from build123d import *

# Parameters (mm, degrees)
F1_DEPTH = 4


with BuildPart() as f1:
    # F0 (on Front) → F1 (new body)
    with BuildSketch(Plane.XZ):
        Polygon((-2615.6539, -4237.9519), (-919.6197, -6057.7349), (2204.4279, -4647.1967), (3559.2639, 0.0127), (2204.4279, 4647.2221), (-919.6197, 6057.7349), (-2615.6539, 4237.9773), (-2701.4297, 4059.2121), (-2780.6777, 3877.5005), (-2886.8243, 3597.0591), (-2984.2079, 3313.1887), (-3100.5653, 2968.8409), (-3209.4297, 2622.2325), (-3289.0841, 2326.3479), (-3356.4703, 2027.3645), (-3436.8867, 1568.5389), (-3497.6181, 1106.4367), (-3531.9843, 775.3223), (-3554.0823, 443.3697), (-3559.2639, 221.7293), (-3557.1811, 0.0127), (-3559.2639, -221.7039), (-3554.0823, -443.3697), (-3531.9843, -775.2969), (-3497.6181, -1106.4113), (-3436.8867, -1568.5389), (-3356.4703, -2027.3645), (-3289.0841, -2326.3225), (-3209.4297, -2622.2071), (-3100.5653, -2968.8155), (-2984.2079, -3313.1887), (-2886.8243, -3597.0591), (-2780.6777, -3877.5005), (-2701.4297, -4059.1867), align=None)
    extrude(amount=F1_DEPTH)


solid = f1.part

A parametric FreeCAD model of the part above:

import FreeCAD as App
import Part
import Sketcher

doc = App.newDocument("Part")
body = doc.addObject("PartDesign::Body", "Body")

# Sketch on XZ plane
sketch1 = doc.addObject("Sketcher::SketchObject", "Sketch")
body.addObject(sketch1)
sketch1.AttachmentSupport = (doc.XZ_Plane, [""])
sketch1.MapMode = "FlatFace"
sketch1.addGeometry(Part.LineSegment(App.Vector(-2616, -4238, 0), App.Vector(-920, -6058, 0)), False)
sketch1.addGeometry(Part.LineSegment(App.Vector(-920, -6058, 0), App.Vector(2204, -4647, 0)), False)
sketch1.addGeometry(Part.LineSegment(App.Vector(2204, -4647, 0), App.Vector(3559, 0, 0)), False)
sketch1.addGeometry(Part.LineSegment(App.Vector(3559, 0, 0), App.Vector(2204, 4647, 0)), False)
sketch1.addGeometry(Part.LineSegment(App.Vector(2204, 4647, 0), App.Vector(-920, 6058, 0)), False)
sketch1.addGeometry(Part.LineSegment(App.Vector(-920, 6058, 0), App.Vector(-2616, 4238, 0)), False)
sketch1.addGeometry(Part.LineSegment(App.Vector(-2616, 4238, 0), App.Vector(-2701, 4059, 0)), False)
sketch1.addGeometry(Part.LineSegment(App.Vector(-2701, 4059, 0), App.Vector(-2781, 3878, 0)), False)
sketch1.addGeometry(Part.LineSegment(App.Vector(-2781, 3878, 0), App.Vector(-2887, 3597, 0)), False)
sketch1.addGeometry(Part.LineSegment(App.Vector(-2887, 3597, 0), App.Vector(-2984, 3313, 0)), False)
sketch1.addGeometry(Part.LineSegment(App.Vector(-2984, 3313, 0), App.Vector(-3101, 2969, 0)), False)
sketch1.addGeometry(Part.LineSegment(App.Vector(-3101, 2969, 0), App.Vector(-3209, 2622, 0)), False)
sketch1.addGeometry(Part.LineSegment(App.Vector(-3209, 2622, 0), App.Vector(-3289, 2326, 0)), False)
sketch1.addGeometry(Part.LineSegment(App.Vector(-3289, 2326, 0), App.Vector(-3356, 2027, 0)), False)
sketch1.addGeometry(Part.LineSegment(App.Vector(-3356, 2027, 0), App.Vector(-3437, 1569, 0)), False)
sketch1.addGeometry(Part.LineSegment(App.Vector(-3437, 1569, 0), App.Vector(-3498, 1106, 0)), False)
sketch1.addGeometry(Part.LineSegment(App.Vector(-3498, 1106, 0), App.Vector(-3532, 775, 0)), False)
sketch1.addGeometry(Part.LineSegment(App.Vector(-3532, 775, 0), App.Vector(-3554, 443, 0)), False)
sketch1.addGeometry(Part.LineSegment(App.Vector(-3554, 443, 0), App.Vector(-3559, 222, 0)), False)
sketch1.addGeometry(Part.LineSegment(App.Vector(-3559, 222, 0), App.Vector(-3557, 0, 0)), False)
sketch1.addGeometry(Part.LineSegment(App.Vector(-3557, 0, 0), App.Vector(-3559, -222, 0)), False)
sketch1.addGeometry(Part.LineSegment(App.Vector(-3559, -222, 0), App.Vector(-3554, -443, 0)), False)
sketch1.addGeometry(Part.LineSegment(App.Vector(-3554, -443, 0), App.Vector(-3532, -775, 0)), False)
sketch1.addGeometry(Part.LineSegment(App.Vector(-3532, -775, 0), App.Vector(-3498, -1106, 0)), False)
sketch1.addGeometry(Part.LineSegment(App.Vector(-3498, -1106, 0), App.Vector(-3437, -1569, 0)), False)
sketch1.addGeometry(Part.LineSegment(App.Vector(-3437, -1569, 0), App.Vector(-3356, -2027, 0)), False)
sketch1.addGeometry(Part.LineSegment(App.Vector(-3356, -2027, 0), App.Vector(-3289, -2326, 0)), False)
sketch1.addGeometry(Part.LineSegment(App.Vector(-3289, -2326, 0), App.Vector(-3209, -2622, 0)), False)
sketch1.addGeometry(Part.LineSegment(App.Vector(-3209, -2622, 0), App.Vector(-3101, -2969, 0)), False)
sketch1.addGeometry(Part.LineSegment(App.Vector(-3101, -2969, 0), App.Vector(-2984, -3313, 0)), False)
sketch1.addGeometry(Part.LineSegment(App.Vector(-2984, -3313, 0), App.Vector(-2887, -3597, 0)), False)
sketch1.addGeometry(Part.LineSegment(App.Vector(-2887, -3597, 0), App.Vector(-2781, -3878, 0)), False)
sketch1.addGeometry(Part.LineSegment(App.Vector(-2781, -3878, 0), App.Vector(-2701, -4059, 0)), False)
sketch1.addGeometry(Part.LineSegment(App.Vector(-2701, -4059, 0), App.Vector(-2616, -4238, 0)), False)
sketch1.addConstraint(Sketcher.Constraint("Coincident", 0, 2, 1, 1))
sketch1.addConstraint(Sketcher.Constraint("Coincident", 1, 2, 2, 1))
sketch1.addConstraint(Sketcher.Constraint("Coincident", 2, 2, 3, 1))
sketch1.addConstraint(Sketcher.Constraint("Coincident", 3, 2, 4, 1))
sketch1.addConstraint(Sketcher.Constraint("Coincident", 4, 2, 5, 1))
sketch1.addConstraint(Sketcher.Constraint("Coincident", 5, 2, 6, 1))
sketch1.addConstraint(Sketcher.Constraint("Coincident", 6, 2, 7, 1))
sketch1.addConstraint(Sketcher.Constraint("Coincident", 7, 2, 8, 1))
sketch1.addConstraint(Sketcher.Constraint("Coincident", 8, 2, 9, 1))
sketch1.addConstraint(Sketcher.Constraint("Coincident", 9, 2, 10, 1))
sketch1.addConstraint(Sketcher.Constraint("Coincident", 10, 2, 11, 1))
sketch1.addConstraint(Sketcher.Constraint("Coincident", 11, 2, 12, 1))
sketch1.addConstraint(Sketcher.Constraint("Coincident", 12, 2, 13, 1))
sketch1.addConstraint(Sketcher.Constraint("Coincident", 13, 2, 14, 1))
sketch1.addConstraint(Sketcher.Constraint("Coincident", 14, 2, 15, 1))
sketch1.addConstraint(Sketcher.Constraint("Coincident", 15, 2, 16, 1))
sketch1.addConstraint(Sketcher.Constraint("Coincident", 16, 2, 17, 1))
sketch1.addConstraint(Sketcher.Constraint("Coincident", 17, 2, 18, 1))
sketch1.addConstraint(Sketcher.Constraint("Coincident", 18, 2, 19, 1))
sketch1.addConstraint(Sketcher.Constraint("Coincident", 19, 2, 20, 1))
sketch1.addConstraint(Sketcher.Constraint("Coincident", 20, 2, 21, 1))
sketch1.addConstraint(Sketcher.Constraint("Coincident", 21, 2, 22, 1))
sketch1.addConstraint(Sketcher.Constraint("Coincident", 22, 2, 23, 1))
sketch1.addConstraint(Sketcher.Constraint("Coincident", 23, 2, 24, 1))
sketch1.addConstraint(Sketcher.Constraint("Coincident", 24, 2, 25, 1))
sketch1.addConstraint(Sketcher.Constraint("Coincident", 25, 2, 26, 1))
sketch1.addConstraint(Sketcher.Constraint("Coincident", 26, 2, 27, 1))
sketch1.addConstraint(Sketcher.Constraint("Coincident", 27, 2, 28, 1))
sketch1.addConstraint(Sketcher.Constraint("Coincident", 28, 2, 29, 1))
sketch1.addConstraint(Sketcher.Constraint("Coincident", 29, 2, 30, 1))
sketch1.addConstraint(Sketcher.Constraint("Coincident", 30, 2, 31, 1))
sketch1.addConstraint(Sketcher.Constraint("Coincident", 31, 2, 32, 1))
sketch1.addConstraint(Sketcher.Constraint("Coincident", 32, 2, 33, 1))
sketch1.addConstraint(Sketcher.Constraint("Coincident", 33, 2, 0, 1))
sketch1.addConstraint(Sketcher.Constraint("Symmetric", 0, 2, 4, 2, -1))
sketch1.addConstraint(Sketcher.Constraint("Symmetric", 17, 2, 21, 2, -1))
sketch1.addConstraint(Sketcher.Constraint("Symmetric", 14, 2, 24, 2, -1))
sketch1.addConstraint(Sketcher.Constraint("Symmetric", 13, 2, 25, 2, -1))
sketch1.addConstraint(Sketcher.Constraint("Symmetric", 9, 2, 29, 2, -1))
sketch1.addConstraint(Sketcher.Constraint("Symmetric", 8, 2, 30, 2, -1))
sketch1.addConstraint(Sketcher.Constraint("Symmetric", 7, 2, 31, 2, -1))
sketch1.addConstraint(Sketcher.Constraint("Horizontal", 2, 2, 19, 2))
sketch1.addConstraint(Sketcher.Constraint("Vertical", 1, 2, 3, 2))
sketch1.addConstraint(Sketcher.Constraint("Vertical", 18, 2, 20, 2))
sketch1.addConstraint(Sketcher.Constraint("Vertical", 16, 2, 22, 2))
sketch1.addConstraint(Sketcher.Constraint("Vertical", 15, 2, 23, 2))
sketch1.addConstraint(Sketcher.Constraint("Vertical", 12, 2, 26, 2))
sketch1.addConstraint(Sketcher.Constraint("Vertical", 11, 2, 27, 2))
sketch1.addConstraint(Sketcher.Constraint("Vertical", 10, 2, 28, 2))
sketch1.addConstraint(Sketcher.Constraint("Vertical", 6, 2, 32, 2))
sketch1.addConstraint(Sketcher.Constraint("Vertical", 5, 2, 33, 2))
sketch1.addConstraint(Sketcher.Constraint("Equal", 2, 3))
sketch1.addConstraint(Sketcher.Constraint("Equal", 19, 20))
sketch1.addConstraint(Sketcher.Constraint("Equal", 16, 23))
sketch1.addConstraint(Sketcher.Constraint("Equal", 12, 27))
sketch1.addConstraint(Sketcher.Constraint("Equal", 11, 28))
sketch1.addConstraint(Sketcher.Constraint("Equal", 6, 33))
sketch1.addConstraint(Sketcher.Constraint("DistanceX", 11, 2, 6, 2, 508.0))
sketch1.addConstraint(Sketcher.Constraint("DistanceX", 6, 2, 4, 2, 1781.81))
sketch1.addConstraint(Sketcher.Constraint("DistanceY", 6, 2, 3, 2, 588.01))
sketch1.addConstraint(Sketcher.Constraint("DistanceX", 1, 2, 2, 2, 1354.836))
sketch1.addConstraint(Sketcher.Constraint("DistanceY", 0, 2, 3, 2, 10704.957))
sketch1.addConstraint(Sketcher.Constraint("DistanceY", 1, 2, 5, 2, 8885.174))
sketch1.addConstraint(Sketcher.Constraint("DistanceX", 7, 2, 6, 2, 79.248))
sketch1.addConstraint(Sketcher.Constraint("DistanceY", 8, 2, 6, 2, 462.153))
sketch1.addConstraint(Sketcher.Constraint("DistanceX", 9, 2, 5, 2, 368.554))
sketch1.addConstraint(Sketcher.Constraint("DistanceX", 10, 2, 8, 2, 213.741))
sketch1.addConstraint(Sketcher.Constraint("DistanceY", 11, 2, 7, 2, 1255.268))
sketch1.addConstraint(Sketcher.Constraint("DistanceY", 12, 2, 10, 2, 642.493))
sketch1.addConstraint(Sketcher.Constraint("DistanceY", 13, 2, 11, 2, 594.868))
sketch1.addConstraint(Sketcher.Constraint("DistanceX", 13, 2, 10, 2, 255.905))
sketch1.addConstraint(Sketcher.Constraint("DistanceY", 14, 2, 12, 2, 757.809))
sketch1.addConstraint(Sketcher.Constraint("DistanceX", 14, 2, 11, 2, 227.457))
sketch1.addConstraint(Sketcher.Constraint("DistanceX", 15, 2, 12, 2, 208.534))
sketch1.addConstraint(Sketcher.Constraint("DistanceX", 16, 2, 13, 2, 175.514))
sketch1.addConstraint(Sketcher.Constraint("DistanceX", 17, 2, 16, 2, 22.098))
sketch1.addConstraint(Sketcher.Constraint("DistanceY", 17, 2, 15, 2, 663.067))
sketch1.addConstraint(Sketcher.Constraint("DistanceY", 18, 2, 16, 2, 553.593))
sketch1.addConstraint(Sketcher.Constraint("DistanceY", 19, 2, 17, 2, 443.357))
sketch1.addConstraint(Sketcher.Constraint("DistanceX", 19, 2, 15, 2, 59.563))
sketch1.addConstraint(Sketcher.Constraint("DistanceY", 21, 2, 18, 2, 665.099))
sketch1.addConstraint(Sketcher.Constraint("DistanceY", 22, 2, 20, 2, 553.593))
sketch1.addConstraint(Sketcher.Constraint("DistanceY", 24, 2, 22, 2, 793.242))
sketch1.addConstraint(Sketcher.Constraint("DistanceY", 26, 2, 25, 2, 298.958))
sketch1.addConstraint(Sketcher.Constraint("DistanceY", 30, 2, 27, 2, 974.852))
sketch1.addConstraint(Sketcher.Constraint("DistanceY", 32, 2, 29, 2, 745.998))
sketch1.addConstraint(Sketcher.Constraint("Distance", 15, 466.075902))
sketch1.addConstraint(Sketcher.Constraint("DistanceX", 0, 2, -1, 1, 919.6197))
sketch1.addConstraint(Sketcher.Constraint("DistanceY", 0, 2, -1, 1, 6057.7349))
sketch1.addConstraint(Sketcher.Constraint("DistanceX", -1, 1, 1, 2, 2204.4279))
sketch1.addConstraint(Sketcher.Constraint("DistanceY", 1, 2, -1, 1, 4647.1967))
sketch1.addConstraint(Sketcher.Constraint("DistanceX", 5, 2, -1, 1, 2615.6539))
sketch1.addConstraint(Sketcher.Constraint("DistanceX", 8, 2, -1, 1, 2886.8243))
sketch1.addConstraint(Sketcher.Constraint("DistanceY", -1, 1, 9, 2, 3313.1887))
sketch1.addConstraint(Sketcher.Constraint("DistanceX", 18, 2, -1, 1, 3559.2639))
pad1 = doc.addObject("PartDesign::Pad", "Pad")
body.addObject(pad1)
pad1.Profile = sketch1
pad1.Length = 4

doc.recompute()
